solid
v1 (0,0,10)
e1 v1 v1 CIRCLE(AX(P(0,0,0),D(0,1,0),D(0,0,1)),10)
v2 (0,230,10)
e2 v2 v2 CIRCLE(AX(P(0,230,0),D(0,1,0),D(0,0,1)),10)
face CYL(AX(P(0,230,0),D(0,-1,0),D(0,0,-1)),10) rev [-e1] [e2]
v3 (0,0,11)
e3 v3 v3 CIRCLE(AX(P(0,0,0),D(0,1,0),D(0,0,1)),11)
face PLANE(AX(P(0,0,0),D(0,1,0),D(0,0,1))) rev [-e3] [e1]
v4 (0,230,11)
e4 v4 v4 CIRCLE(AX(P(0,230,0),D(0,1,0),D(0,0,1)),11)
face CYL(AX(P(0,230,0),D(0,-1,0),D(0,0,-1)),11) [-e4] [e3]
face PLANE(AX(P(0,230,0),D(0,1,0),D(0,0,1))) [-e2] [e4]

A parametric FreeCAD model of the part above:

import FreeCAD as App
import Part
import Sketcher

doc = App.newDocument("Part")
params = doc.addObject("Spreadsheet::Sheet", "Params")
for row, (alias, value) in enumerate([
    ("sketch1_diameter", "22 mm"),
    ("sketch1_diameter2", "20 mm"),
    ("pad1_length", "230 mm"),
], start=1):
    params.set(f"A{row}", alias)
    params.set(f"B{row}", "=" + value)
    params.setAlias(f"B{row}", alias)

body = doc.addObject("PartDesign::Body", "Body")

# Sketch on XZ plane
sketch1 = body.newObject("Sketcher::SketchObject", "Sketch")
sketch1.AttachmentSupport = (doc.getObject("XZ_Plane"), [""])
sketch1.MapMode = "FlatFace"
sketch1.addGeometry([
    Part.Circle(App.Vector(0, 0, 0), App.Vector(0, 0, 1), 11),
    Part.Circle(App.Vector(0, 0, 0), App.Vector(0, 0, 1), 10),
], False)
sketch1.addConstraint([
    Sketcher.Constraint("Coincident", 0, 3, -1, 1),
    Sketcher.Constraint("Coincident", 1, 3, -1, 1),
    Sketcher.Constraint("Diameter", 0, 22.0),
    Sketcher.Constraint("Diameter", 1, 20.0),
])
sketch1.setExpression("Constraints[2]", "Params.sketch1_diameter")
sketch1.setExpression("Constraints[3]", "Params.sketch1_diameter2")
pad1 = body.newObject("PartDesign::Pad", "Pad")
pad1.Profile = sketch1
pad1.setExpression("Length", "Params.pad1_length")
pad1.Reversed = True

doc.recompute()
